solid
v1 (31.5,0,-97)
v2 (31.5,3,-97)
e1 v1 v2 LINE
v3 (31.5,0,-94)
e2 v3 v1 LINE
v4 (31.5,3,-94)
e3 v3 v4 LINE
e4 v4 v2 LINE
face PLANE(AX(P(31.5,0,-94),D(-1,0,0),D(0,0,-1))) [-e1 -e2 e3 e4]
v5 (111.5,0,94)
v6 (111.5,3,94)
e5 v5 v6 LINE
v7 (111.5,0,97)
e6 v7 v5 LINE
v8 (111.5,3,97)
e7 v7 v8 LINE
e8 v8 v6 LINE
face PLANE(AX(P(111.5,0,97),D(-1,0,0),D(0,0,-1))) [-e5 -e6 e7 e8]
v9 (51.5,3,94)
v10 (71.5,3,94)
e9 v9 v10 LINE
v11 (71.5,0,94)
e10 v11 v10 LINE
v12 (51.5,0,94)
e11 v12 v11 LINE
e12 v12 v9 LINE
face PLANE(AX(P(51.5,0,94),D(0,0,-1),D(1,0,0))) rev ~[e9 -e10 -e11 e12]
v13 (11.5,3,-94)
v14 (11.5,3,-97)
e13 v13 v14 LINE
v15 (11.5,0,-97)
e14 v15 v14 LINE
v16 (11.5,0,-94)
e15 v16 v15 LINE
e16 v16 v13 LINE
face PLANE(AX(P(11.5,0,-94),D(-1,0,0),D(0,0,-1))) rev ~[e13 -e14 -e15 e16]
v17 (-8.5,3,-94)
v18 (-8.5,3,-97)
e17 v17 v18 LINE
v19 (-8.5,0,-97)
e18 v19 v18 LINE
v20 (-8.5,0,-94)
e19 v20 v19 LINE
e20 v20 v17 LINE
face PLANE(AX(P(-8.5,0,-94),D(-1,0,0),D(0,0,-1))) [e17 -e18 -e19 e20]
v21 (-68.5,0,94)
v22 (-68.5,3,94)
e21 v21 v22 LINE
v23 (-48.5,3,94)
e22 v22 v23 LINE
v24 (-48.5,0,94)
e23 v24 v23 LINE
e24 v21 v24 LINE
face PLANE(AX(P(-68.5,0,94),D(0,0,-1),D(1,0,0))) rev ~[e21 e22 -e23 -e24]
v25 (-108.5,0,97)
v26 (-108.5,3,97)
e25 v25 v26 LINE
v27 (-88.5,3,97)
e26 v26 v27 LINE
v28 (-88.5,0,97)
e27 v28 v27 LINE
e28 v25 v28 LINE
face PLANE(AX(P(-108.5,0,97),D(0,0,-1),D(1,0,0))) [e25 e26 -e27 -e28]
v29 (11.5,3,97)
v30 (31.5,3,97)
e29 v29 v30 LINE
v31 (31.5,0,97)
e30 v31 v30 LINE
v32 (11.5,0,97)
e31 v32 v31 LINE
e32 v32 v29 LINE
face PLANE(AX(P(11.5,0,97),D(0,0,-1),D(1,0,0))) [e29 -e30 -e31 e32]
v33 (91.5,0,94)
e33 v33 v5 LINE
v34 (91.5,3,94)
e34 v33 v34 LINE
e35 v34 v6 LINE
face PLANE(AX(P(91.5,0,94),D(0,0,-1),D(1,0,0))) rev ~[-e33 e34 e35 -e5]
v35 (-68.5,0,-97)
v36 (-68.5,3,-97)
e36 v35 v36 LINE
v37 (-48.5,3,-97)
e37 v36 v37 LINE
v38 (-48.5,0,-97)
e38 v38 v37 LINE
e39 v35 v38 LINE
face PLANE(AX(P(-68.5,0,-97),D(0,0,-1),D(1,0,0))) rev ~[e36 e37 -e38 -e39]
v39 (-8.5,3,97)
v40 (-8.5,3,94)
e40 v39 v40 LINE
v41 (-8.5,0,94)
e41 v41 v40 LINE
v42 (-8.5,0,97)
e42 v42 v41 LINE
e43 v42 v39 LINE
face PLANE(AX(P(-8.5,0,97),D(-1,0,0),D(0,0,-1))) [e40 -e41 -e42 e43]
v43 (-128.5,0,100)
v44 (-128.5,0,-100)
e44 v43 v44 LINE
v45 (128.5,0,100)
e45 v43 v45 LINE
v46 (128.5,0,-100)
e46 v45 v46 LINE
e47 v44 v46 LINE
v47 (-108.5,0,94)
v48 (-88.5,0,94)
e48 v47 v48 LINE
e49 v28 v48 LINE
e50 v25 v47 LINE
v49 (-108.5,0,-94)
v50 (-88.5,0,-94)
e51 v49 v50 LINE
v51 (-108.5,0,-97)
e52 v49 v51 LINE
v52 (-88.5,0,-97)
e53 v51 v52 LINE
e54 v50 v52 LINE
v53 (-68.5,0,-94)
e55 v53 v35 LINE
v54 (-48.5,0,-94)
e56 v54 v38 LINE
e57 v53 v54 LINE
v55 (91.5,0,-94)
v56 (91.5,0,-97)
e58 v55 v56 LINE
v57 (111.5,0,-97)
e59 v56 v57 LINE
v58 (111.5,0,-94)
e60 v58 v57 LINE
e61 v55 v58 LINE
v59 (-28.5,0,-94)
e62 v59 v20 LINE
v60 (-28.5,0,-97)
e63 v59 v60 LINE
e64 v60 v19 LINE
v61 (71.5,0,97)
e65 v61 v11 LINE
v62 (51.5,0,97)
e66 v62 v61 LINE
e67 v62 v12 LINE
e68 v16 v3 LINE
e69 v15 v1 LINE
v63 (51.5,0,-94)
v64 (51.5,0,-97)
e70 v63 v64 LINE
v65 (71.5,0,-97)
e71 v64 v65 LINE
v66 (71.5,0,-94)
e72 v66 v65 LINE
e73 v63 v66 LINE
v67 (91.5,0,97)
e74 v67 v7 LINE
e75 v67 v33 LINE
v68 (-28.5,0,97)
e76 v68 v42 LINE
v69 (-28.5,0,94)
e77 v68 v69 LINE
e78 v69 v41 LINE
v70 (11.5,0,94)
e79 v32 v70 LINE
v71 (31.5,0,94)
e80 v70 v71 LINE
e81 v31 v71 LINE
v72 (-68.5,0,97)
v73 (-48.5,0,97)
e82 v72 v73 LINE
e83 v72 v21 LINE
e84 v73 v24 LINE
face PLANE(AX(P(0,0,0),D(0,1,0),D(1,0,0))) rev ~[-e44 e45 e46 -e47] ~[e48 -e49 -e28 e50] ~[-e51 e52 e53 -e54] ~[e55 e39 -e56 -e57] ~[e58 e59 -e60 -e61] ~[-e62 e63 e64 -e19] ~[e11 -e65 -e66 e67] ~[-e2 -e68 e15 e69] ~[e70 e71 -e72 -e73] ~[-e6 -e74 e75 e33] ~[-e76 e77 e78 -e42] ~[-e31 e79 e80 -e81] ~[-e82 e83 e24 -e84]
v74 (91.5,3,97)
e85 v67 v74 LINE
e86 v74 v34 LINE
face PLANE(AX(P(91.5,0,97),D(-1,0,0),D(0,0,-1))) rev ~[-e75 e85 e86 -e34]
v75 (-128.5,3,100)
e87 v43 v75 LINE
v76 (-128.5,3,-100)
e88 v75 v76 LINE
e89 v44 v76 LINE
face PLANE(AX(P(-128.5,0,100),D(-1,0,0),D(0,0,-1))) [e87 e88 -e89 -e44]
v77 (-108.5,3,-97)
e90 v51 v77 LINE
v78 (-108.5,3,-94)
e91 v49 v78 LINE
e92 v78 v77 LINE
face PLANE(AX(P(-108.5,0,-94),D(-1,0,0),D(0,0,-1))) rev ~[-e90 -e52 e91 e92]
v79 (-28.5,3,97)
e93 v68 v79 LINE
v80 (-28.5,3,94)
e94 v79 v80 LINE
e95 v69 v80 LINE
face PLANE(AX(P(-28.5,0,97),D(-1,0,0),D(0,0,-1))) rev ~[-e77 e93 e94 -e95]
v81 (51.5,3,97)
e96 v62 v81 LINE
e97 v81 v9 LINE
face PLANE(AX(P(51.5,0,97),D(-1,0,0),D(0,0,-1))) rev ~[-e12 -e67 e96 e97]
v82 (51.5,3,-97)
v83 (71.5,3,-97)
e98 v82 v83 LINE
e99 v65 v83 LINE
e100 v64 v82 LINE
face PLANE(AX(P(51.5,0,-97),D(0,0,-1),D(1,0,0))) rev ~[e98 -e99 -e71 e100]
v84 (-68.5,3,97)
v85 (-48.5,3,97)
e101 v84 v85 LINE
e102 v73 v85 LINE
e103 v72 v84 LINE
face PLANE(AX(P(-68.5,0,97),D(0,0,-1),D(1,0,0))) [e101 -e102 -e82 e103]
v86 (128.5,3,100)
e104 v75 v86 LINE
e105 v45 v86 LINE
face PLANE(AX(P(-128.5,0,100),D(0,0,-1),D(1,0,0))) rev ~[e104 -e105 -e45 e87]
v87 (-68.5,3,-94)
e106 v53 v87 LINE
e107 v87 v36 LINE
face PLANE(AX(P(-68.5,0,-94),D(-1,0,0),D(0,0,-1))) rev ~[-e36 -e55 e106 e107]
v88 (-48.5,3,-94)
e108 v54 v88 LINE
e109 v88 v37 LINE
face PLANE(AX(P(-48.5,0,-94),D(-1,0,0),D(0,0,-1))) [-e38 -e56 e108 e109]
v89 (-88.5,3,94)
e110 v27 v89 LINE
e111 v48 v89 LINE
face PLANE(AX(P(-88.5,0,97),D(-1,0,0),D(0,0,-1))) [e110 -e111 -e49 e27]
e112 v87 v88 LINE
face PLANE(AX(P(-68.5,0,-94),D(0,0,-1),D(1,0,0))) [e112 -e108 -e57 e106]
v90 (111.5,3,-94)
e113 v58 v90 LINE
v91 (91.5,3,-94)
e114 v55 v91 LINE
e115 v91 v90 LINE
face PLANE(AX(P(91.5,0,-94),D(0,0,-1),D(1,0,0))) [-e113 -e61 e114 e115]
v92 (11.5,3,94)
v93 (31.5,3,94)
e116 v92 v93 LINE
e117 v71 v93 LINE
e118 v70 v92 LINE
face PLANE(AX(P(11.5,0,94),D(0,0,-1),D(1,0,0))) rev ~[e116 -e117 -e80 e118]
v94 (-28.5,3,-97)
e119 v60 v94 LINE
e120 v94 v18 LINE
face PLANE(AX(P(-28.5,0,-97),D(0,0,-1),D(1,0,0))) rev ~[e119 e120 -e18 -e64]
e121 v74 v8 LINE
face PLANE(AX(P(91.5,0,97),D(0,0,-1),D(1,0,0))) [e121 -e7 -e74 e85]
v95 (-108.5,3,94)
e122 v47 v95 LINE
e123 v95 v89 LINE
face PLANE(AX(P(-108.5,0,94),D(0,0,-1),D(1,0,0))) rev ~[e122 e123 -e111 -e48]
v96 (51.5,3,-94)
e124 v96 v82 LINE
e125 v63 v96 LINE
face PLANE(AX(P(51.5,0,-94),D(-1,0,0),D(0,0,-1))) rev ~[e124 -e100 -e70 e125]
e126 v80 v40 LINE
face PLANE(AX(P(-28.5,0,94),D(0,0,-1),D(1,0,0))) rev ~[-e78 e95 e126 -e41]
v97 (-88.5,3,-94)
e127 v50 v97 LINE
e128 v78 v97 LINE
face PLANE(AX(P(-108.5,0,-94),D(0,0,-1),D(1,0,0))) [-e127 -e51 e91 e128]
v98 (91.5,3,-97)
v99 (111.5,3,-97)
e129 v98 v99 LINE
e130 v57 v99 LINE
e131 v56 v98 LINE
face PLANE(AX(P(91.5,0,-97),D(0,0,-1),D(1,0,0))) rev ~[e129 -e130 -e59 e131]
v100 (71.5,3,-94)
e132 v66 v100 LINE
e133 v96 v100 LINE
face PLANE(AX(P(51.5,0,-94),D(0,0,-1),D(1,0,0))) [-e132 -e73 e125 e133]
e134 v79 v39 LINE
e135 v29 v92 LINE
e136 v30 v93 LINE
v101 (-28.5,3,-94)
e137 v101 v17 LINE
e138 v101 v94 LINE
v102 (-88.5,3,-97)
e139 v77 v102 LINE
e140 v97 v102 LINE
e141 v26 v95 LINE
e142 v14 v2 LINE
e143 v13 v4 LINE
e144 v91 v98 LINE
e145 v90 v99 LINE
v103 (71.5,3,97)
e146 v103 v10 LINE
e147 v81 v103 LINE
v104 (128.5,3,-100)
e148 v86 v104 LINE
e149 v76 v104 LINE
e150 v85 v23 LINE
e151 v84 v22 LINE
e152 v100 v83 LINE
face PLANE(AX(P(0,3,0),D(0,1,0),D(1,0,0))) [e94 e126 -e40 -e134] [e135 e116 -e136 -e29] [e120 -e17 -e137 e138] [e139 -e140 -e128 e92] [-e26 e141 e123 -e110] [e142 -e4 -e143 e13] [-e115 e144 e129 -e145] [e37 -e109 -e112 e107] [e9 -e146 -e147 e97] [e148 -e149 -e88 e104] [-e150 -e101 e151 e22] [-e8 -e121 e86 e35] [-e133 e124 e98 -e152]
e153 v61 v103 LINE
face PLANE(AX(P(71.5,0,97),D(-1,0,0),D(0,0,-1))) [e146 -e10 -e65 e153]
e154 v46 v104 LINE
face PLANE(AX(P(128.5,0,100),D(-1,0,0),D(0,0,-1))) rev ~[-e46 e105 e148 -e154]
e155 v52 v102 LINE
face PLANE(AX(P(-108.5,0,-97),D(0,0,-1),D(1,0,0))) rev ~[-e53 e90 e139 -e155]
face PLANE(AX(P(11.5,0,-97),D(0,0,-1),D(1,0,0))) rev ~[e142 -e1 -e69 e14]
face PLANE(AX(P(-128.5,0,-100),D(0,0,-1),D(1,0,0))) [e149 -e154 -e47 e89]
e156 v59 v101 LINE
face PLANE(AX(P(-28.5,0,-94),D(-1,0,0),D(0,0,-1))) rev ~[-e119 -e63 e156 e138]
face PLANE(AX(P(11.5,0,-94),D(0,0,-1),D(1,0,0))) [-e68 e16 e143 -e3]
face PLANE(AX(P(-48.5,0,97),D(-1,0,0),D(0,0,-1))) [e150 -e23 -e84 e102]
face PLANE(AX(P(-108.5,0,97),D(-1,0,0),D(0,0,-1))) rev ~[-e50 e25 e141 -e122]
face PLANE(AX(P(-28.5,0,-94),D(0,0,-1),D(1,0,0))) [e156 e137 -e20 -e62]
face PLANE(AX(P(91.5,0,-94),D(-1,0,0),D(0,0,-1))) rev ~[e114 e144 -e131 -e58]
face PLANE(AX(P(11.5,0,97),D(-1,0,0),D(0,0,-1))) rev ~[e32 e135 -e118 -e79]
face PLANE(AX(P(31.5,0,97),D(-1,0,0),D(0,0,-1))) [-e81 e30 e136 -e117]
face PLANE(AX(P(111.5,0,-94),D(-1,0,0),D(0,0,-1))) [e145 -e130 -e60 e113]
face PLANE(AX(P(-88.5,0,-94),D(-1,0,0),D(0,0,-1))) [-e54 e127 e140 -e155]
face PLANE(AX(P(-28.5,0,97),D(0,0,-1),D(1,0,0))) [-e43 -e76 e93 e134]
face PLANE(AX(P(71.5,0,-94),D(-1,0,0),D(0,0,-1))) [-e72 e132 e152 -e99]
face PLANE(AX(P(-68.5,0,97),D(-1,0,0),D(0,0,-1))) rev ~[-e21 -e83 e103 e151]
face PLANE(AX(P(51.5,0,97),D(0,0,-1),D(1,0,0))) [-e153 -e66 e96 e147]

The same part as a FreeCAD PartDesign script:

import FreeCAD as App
import Part
import Sketcher

V = App.Vector

doc = App.newDocument("Part")
params = doc.addObject("Spreadsheet::Sheet", "Params")
for row, (alias, value) in enumerate([
    ("sketch1_width", "257 mm"),
    ("sketch1_width2", "20 mm"),
    ("sketch1_height", "200 mm"),
    ("sketch1_height2", "3 mm"),
    ("pad1_length", "3 mm"),
], start=1):
    params.set(f"A{row}", alias)
    params.set(f"B{row}", "=" + value)
    params.setAlias(f"B{row}", alias)

body = doc.addObject("PartDesign::Body", "Body")

# Sketch on XZ plane
sketch1 = body.newObject("Sketcher::SketchObject", "Sketch")
sketch1.AttachmentSupport = (doc.getObject("XZ_Plane"), [""])
sketch1.MapMode = "FlatFace"
sketch1.addGeometry([
    Part.LineSegment(V(-128.5, -100, 0), V(-128.5, 100, 0)),  # 0
    Part.LineSegment(V(-128.5, 100, 0), V(128.5, 100, 0)),  # 1
    Part.LineSegment(V(128.5, 100, 0), V(128.5, -100, 0)),  # 2
    Part.LineSegment(V(128.5, -100, 0), V(-128.5, -100, 0)),  # 3
    Part.LineSegment(V(-88.5, 97, 0), V(-108.5, 97, 0)),  # 4
    Part.LineSegment(V(-108.5, 97, 0), V(-108.5, 94, 0)),  # 5
    Part.LineSegment(V(-108.5, 94, 0), V(-88.5, 94, 0)),  # 6
    Part.LineSegment(V(-88.5, 94, 0), V(-88.5, 97, 0)),  # 7
    Part.LineSegment(V(-48.5, 97, 0), V(-68.5, 97, 0)),  # 8
    Part.LineSegment(V(-68.5, 97, 0), V(-68.5, 94, 0)),  # 9
    Part.LineSegment(V(-68.5, 94, 0), V(-48.5, 94, 0)),  # 10
    Part.LineSegment(V(-48.5, 94, 0), V(-48.5, 97, 0)),  # 11
    Part.LineSegment(V(-8.5, 97, 0), V(-28.5, 97, 0)),  # 12
    Part.LineSegment(V(-28.5, 97, 0), V(-28.5, 94, 0)),  # 13
    Part.LineSegment(V(-28.5, 94, 0), V(-8.5, 94, 0)),  # 14
    Part.LineSegment(V(-8.5, 94, 0), V(-8.5, 97, 0)),  # 15
    Part.LineSegment(V(31.5, 97, 0), V(11.5, 97, 0)),  # 16
    Part.LineSegment(V(11.5, 97, 0), V(11.5, 94, 0)),  # 17
    Part.LineSegment(V(11.5, 94, 0), V(31.5, 94, 0)),  # 18
    Part.LineSegment(V(31.5, 94, 0), V(31.5, 97, 0)),  # 19
    Part.LineSegment(V(71.5, 97, 0), V(51.5, 97, 0)),  # 20
    Part.LineSegment(V(51.5, 97, 0), V(51.5, 94, 0)),  # 21
    Part.LineSegment(V(51.5, 94, 0), V(71.5, 94, 0)),  # 22
    Part.LineSegment(V(71.5, 94, 0), V(71.5, 97, 0)),  # 23
    Part.LineSegment(V(111.5, 97, 0), V(91.5, 97, 0)),  # 24
    Part.LineSegment(V(91.5, 97, 0), V(91.5, 94, 0)),  # 25
    Part.LineSegment(V(91.5, 94, 0), V(111.5, 94, 0)),  # 26
    Part.LineSegment(V(111.5, 94, 0), V(111.5, 97, 0)),  # 27
    Part.LineSegment(V(-88.5, -94, 0), V(-108.5, -94, 0)),  # 28
    Part.LineSegment(V(-108.5, -94, 0), V(-108.5, -97, 0)),  # 29
    Part.LineSegment(V(-108.5, -97, 0), V(-88.5, -97, 0)),  # 30
    Part.LineSegment(V(-88.5, -97, 0), V(-88.5, -94, 0)),  # 31
    Part.LineSegment(V(-48.5, -94, 0), V(-68.5, -94, 0)),  # 32
    Part.LineSegment(V(-68.5, -94, 0), V(-68.5, -97, 0)),  # 33
    Part.LineSegment(V(-68.5, -97, 0), V(-48.5, -97, 0)),  # 34
    Part.LineSegment(V(-48.5, -97, 0), V(-48.5, -94, 0)),  # 35
    Part.LineSegment(V(-8.5, -94, 0), V(-28.5, -94, 0)),  # 36
    Part.LineSegment(V(-28.5, -94, 0), V(-28.5, -97, 0)),  # 37
    Part.LineSegment(V(-28.5, -97, 0), V(-8.5, -97, 0)),  # 38
    Part.LineSegment(V(-8.5, -97, 0), V(-8.5, -94, 0)),  # 39
    Part.LineSegment(V(31.5, -94, 0), V(11.5, -94, 0)),  # 40
    Part.LineSegment(V(11.5, -94, 0), V(11.5, -97, 0)),  # 41
    Part.LineSegment(V(11.5, -97, 0), V(31.5, -97, 0)),  # 42
    Part.LineSegment(V(31.5, -97, 0), V(31.5, -94, 0)),  # 43
    Part.LineSegment(V(71.5, -94, 0), V(51.5, -94, 0)),  # 44
    Part.LineSegment(V(51.5, -94, 0), V(51.5, -97, 0)),  # 45
    Part.LineSegment(V(51.5, -97, 0), V(71.5, -97, 0)),  # 46
    Part.LineSegment(V(71.5, -97, 0), V(71.5, -94, 0)),  # 47
    Part.LineSegment(V(111.5, -94, 0), V(91.5, -94, 0)),  # 48
    Part.LineSegment(V(91.5, -94, 0), V(91.5, -97, 0)),  # 49
    Part.LineSegment(V(91.5, -97, 0), V(111.5, -97, 0)),  # 50
    Part.LineSegment(V(111.5, -97, 0), V(111.5, -94, 0)),  # 51
], False)
sketch1.addConstraint([
    Sketcher.Constraint("Coincident", 0, 2, 1, 1),
    Sketcher.Constraint("Coincident", 1, 2, 2, 1),
    Sketcher.Constraint("Coincident", 2, 2, 3, 1),
    Sketcher.Constraint("Coincident", 3, 2, 0, 1),
    Sketcher.Constraint("Coincident", 4, 2, 5, 1),
    Sketcher.Constraint("Coincident", 5, 2, 6, 1),
    Sketcher.Constraint("Coincident", 6, 2, 7, 1),
    Sketcher.Constraint("Coincident", 7, 2, 4, 1),
    Sketcher.Constraint("Coincident", 8, 2, 9, 1),
    Sketcher.Constraint("Coincident", 9, 2, 10, 1),
    Sketcher.Constraint("Coincident", 10, 2, 11, 1),
    Sketcher.Constraint("Coincident", 11, 2, 8, 1),
    Sketcher.Constraint("Coincident", 12, 2, 13, 1),
    Sketcher.Constraint("Coincident", 13, 2, 14, 1),
    Sketcher.Constraint("Coincident", 14, 2, 15, 1),
    Sketcher.Constraint("Coincident", 15, 2, 12, 1),
    Sketcher.Constraint("Coincident", 16, 2, 17, 1),
    Sketcher.Constraint("Coincident", 17, 2, 18, 1),
    Sketcher.Constraint("Coincident", 18, 2, 19, 1),
    Sketcher.Constraint("Coincident", 19, 2, 16, 1),
    Sketcher.Constraint("Coincident", 20, 2, 21, 1),
    Sketcher.Constraint("Coincident", 21, 2, 22, 1),
    Sketcher.Constraint("Coincident", 22, 2, 23, 1),
    Sketcher.Constraint("Coincident", 23, 2, 20, 1),
    Sketcher.Constraint("Coincident", 24, 2, 25, 1),
    Sketcher.Constraint("Coincident", 25, 2, 26, 1),
    Sketcher.Constraint("Coincident", 26, 2, 27, 1),
    Sketcher.Constraint("Coincident", 27, 2, 24, 1),
    Sketcher.Constraint("Coincident", 28, 2, 29, 1),
    Sketcher.Constraint("Coincident", 29, 2, 30, 1),
    Sketcher.Constraint("Coincident", 30, 2, 31, 1),
    Sketcher.Constraint("Coincident", 31, 2, 28, 1),
    Sketcher.Constraint("Coincident", 32, 2, 33, 1),
    Sketcher.Constraint("Coincident", 33, 2, 34, 1),
    Sketcher.Constraint("Coincident", 34, 2, 35, 1),
    Sketcher.Constraint("Coincident", 35, 2, 32, 1),
    Sketcher.Constraint("Coincident", 36, 2, 37, 1),
    Sketcher.Constraint("Coincident", 37, 2, 38, 1),
    Sketcher.Constraint("Coincident", 38, 2, 39, 1),
    Sketcher.Constraint("Coincident", 39, 2, 36, 1),
    Sketcher.Constraint("Coincident", 40, 2, 41, 1),
    Sketcher.Constraint("Coincident", 41, 2, 42, 1),
    Sketcher.Constraint("Coincident", 42, 2, 43, 1),
    Sketcher.Constraint("Coincident", 43, 2, 40, 1),
    Sketcher.Constraint("Coincident", 44, 2, 45, 1),
    Sketcher.Constraint("Coincident", 45, 2, 46, 1),
    Sketcher.Constraint("Coincident", 46, 2, 47, 1),
    Sketcher.Constraint("Coincident", 47, 2, 44, 1),
    Sketcher.Constraint("Coincident", 48, 2, 49, 1),
    Sketcher.Constraint("Coincident", 49, 2, 50, 1),
    Sketcher.Constraint("Coincident", 50, 2, 51, 1),
    Sketcher.Constraint("Coincident", 51, 2, 48, 1),
    Sketcher.Constraint("Vertical", 0),
    Sketcher.Constraint("Horizontal", 1),
    Sketcher.Constraint("Vertical", 2),
    Sketcher.Constraint("Horizontal", 3),
    Sketcher.Constraint("Horizontal", 4),
    Sketcher.Constraint("Vertical", 5),
    Sketcher.Constraint("Horizontal", 6),
    Sketcher.Constraint("Vertical", 7),
    Sketcher.Constraint("Horizontal", 8),
    Sketcher.Constraint("Vertical", 9),
    Sketcher.Constraint("Horizontal", 10),
    Sketcher.Constraint("Vertical", 11),
    Sketcher.Constraint("Horizontal", 12),
    Sketcher.Constraint("Vertical", 13),
    Sketcher.Constraint("Horizontal", 14),
    Sketcher.Constraint("Vertical", 15),
    Sketcher.Constraint("Horizontal", 16),
    Sketcher.Constraint("Vertical", 17),
    Sketcher.Constraint("Horizontal", 18),
    Sketcher.Constraint("Vertical", 19),
    Sketcher.Constraint("Horizontal", 20),
    Sketcher.Constraint("Vertical", 21),
    Sketcher.Constraint("Horizontal", 22),
    Sketcher.Constraint("Vertical", 23),
    Sketcher.Constraint("Horizontal", 24),
    Sketcher.Constraint("Vertical", 25),
    Sketcher.Constraint("Horizontal", 26),
    Sketcher.Constraint("Vertical", 27),
    Sketcher.Constraint("Horizontal", 28),
    Sketcher.Constraint("Vertical", 29),
    Sketcher.Constraint("Horizontal", 30),
    Sketcher.Constraint("Vertical", 31),
    Sketcher.Constraint("Horizontal", 32),
    Sketcher.Constraint("Vertical", 33),
    Sketcher.Constraint("Horizontal", 34),
    Sketcher.Constraint("Vertical", 35),
    Sketcher.Constraint("Horizontal", 36),
    Sketcher.Constraint("Vertical", 37),
    Sketcher.Constraint("Horizontal", 38),
    Sketcher.Constraint("Vertical", 39),
    Sketcher.Constraint("Horizontal", 40),
    Sketcher.Constraint("Vertical", 41),
    Sketcher.Constraint("Horizontal", 42),
    Sketcher.Constraint("Vertical", 43),
    Sketcher.Constraint("Horizontal", 44),
    Sketcher.Constraint("Vertical", 45),
    Sketcher.Constraint("Horizontal", 46),
    Sketcher.Constraint("Vertical", 47),
    Sketcher.Constraint("Horizontal", 48),
    Sketcher.Constraint("Vertical", 49),
    Sketcher.Constraint("Horizontal", 50),
    Sketcher.Constraint("Vertical", 51),
    Sketcher.Constraint("Symmetric", 0, 2, 2, 2, -1, 1),
    Sketcher.Constraint("Symmetric", 5, 2, 28, 2, -1),
    Sketcher.Constraint("Symmetric", 7, 2, 30, 2, -1),
    Sketcher.Constraint("Symmetric", 9, 2, 32, 2, -1),
    Sketcher.Constraint("Symmetric", 11, 2, 34, 2, -1),
    Sketcher.Constraint("Symmetric", 13, 2, 36, 2, -1),
    Sketcher.Constraint("Symmetric", 15, 2, 38, 2, -1),
    Sketcher.Constraint("Symmetric", 17, 2, 40, 2, -1),
    Sketcher.Constraint("Symmetric", 19, 2, 42, 2, -1),
    Sketcher.Constraint("Symmetric", 21, 2, 44, 2, -1),
    Sketcher.Constraint("Symmetric", 23, 2, 46, 2, -1),
    Sketcher.Constraint("Symmetric", 25, 2, 48, 2, -1),
    Sketcher.Constraint("Symmetric", 27, 2, 50, 2, -1),
    Sketcher.Constraint("Horizontal", 7, 2, 8, 2),
    Sketcher.Constraint("Horizontal", 6, 2, 9, 2),
    Sketcher.Constraint("Horizontal", 11, 2, 12, 2),
    Sketcher.Constraint("Horizontal", 10, 2, 13, 2),
    Sketcher.Constraint("Horizontal", 15, 2, 16, 2),
    Sketcher.Constraint("Horizontal", 14, 2, 17, 2),
    Sketcher.Constraint("Horizontal", 19, 2, 20, 2),
    Sketcher.Constraint("Horizontal", 18, 2, 21, 2),
    Sketcher.Constraint("Horizontal", 23, 2, 24, 2),
    Sketcher.Constraint("Horizontal", 22, 2, 25, 2),
    Sketcher.Constraint("Equal", 6, 8),
    Sketcher.Constraint("Equal", 10, 12),
    Sketcher.Constraint("Equal", 14, 16),
    Sketcher.Constraint("Equal", 18, 20),
    Sketcher.Constraint("Equal", 22, 24),
    Sketcher.Constraint("DistanceX", 1, 1, 1, 2, 257.0),
    Sketcher.Constraint("DistanceX", 4, 2, 4, 1, 20.0),
    Sketcher.Constraint("DistanceY", 0, 1, 0, 2, 200.0),
    Sketcher.Constraint("DistanceY", 5, 2, 5, 1, 3.0),
    Sketcher.Constraint("DistanceY", -1, 1, 4, 2, 97.0),
    Sketcher.Constraint("DistanceX", 0, 2, 4, 2, 20.0),
    Sketcher.Constraint("DistanceX", 7, 2, 8, 2, 20.0),
    Sketcher.Constraint("DistanceX", 11, 2, 12, 2, 20.0),
    Sketcher.Constraint("DistanceX", 15, 2, 16, 2, 20.0),
    Sketcher.Constraint("DistanceX", 19, 2, 20, 2, 20.0),
    Sketcher.Constraint("DistanceX", 23, 2, 24, 2, 20.0),
])
sketch1.setExpression("Constraints[132]", "Params.sketch1_width")
sketch1.setExpression("Constraints[133]", "Params.sketch1_width2")
sketch1.setExpression("Constraints[134]", "Params.sketch1_height")
sketch1.setExpression("Constraints[135]", "Params.sketch1_height2")
pad1 = body.newObject("PartDesign::Pad", "Pad")
pad1.Profile = sketch1
pad1.setExpression("Length", "Params.pad1_length")
pad1.Reversed = True

doc.recompute()
